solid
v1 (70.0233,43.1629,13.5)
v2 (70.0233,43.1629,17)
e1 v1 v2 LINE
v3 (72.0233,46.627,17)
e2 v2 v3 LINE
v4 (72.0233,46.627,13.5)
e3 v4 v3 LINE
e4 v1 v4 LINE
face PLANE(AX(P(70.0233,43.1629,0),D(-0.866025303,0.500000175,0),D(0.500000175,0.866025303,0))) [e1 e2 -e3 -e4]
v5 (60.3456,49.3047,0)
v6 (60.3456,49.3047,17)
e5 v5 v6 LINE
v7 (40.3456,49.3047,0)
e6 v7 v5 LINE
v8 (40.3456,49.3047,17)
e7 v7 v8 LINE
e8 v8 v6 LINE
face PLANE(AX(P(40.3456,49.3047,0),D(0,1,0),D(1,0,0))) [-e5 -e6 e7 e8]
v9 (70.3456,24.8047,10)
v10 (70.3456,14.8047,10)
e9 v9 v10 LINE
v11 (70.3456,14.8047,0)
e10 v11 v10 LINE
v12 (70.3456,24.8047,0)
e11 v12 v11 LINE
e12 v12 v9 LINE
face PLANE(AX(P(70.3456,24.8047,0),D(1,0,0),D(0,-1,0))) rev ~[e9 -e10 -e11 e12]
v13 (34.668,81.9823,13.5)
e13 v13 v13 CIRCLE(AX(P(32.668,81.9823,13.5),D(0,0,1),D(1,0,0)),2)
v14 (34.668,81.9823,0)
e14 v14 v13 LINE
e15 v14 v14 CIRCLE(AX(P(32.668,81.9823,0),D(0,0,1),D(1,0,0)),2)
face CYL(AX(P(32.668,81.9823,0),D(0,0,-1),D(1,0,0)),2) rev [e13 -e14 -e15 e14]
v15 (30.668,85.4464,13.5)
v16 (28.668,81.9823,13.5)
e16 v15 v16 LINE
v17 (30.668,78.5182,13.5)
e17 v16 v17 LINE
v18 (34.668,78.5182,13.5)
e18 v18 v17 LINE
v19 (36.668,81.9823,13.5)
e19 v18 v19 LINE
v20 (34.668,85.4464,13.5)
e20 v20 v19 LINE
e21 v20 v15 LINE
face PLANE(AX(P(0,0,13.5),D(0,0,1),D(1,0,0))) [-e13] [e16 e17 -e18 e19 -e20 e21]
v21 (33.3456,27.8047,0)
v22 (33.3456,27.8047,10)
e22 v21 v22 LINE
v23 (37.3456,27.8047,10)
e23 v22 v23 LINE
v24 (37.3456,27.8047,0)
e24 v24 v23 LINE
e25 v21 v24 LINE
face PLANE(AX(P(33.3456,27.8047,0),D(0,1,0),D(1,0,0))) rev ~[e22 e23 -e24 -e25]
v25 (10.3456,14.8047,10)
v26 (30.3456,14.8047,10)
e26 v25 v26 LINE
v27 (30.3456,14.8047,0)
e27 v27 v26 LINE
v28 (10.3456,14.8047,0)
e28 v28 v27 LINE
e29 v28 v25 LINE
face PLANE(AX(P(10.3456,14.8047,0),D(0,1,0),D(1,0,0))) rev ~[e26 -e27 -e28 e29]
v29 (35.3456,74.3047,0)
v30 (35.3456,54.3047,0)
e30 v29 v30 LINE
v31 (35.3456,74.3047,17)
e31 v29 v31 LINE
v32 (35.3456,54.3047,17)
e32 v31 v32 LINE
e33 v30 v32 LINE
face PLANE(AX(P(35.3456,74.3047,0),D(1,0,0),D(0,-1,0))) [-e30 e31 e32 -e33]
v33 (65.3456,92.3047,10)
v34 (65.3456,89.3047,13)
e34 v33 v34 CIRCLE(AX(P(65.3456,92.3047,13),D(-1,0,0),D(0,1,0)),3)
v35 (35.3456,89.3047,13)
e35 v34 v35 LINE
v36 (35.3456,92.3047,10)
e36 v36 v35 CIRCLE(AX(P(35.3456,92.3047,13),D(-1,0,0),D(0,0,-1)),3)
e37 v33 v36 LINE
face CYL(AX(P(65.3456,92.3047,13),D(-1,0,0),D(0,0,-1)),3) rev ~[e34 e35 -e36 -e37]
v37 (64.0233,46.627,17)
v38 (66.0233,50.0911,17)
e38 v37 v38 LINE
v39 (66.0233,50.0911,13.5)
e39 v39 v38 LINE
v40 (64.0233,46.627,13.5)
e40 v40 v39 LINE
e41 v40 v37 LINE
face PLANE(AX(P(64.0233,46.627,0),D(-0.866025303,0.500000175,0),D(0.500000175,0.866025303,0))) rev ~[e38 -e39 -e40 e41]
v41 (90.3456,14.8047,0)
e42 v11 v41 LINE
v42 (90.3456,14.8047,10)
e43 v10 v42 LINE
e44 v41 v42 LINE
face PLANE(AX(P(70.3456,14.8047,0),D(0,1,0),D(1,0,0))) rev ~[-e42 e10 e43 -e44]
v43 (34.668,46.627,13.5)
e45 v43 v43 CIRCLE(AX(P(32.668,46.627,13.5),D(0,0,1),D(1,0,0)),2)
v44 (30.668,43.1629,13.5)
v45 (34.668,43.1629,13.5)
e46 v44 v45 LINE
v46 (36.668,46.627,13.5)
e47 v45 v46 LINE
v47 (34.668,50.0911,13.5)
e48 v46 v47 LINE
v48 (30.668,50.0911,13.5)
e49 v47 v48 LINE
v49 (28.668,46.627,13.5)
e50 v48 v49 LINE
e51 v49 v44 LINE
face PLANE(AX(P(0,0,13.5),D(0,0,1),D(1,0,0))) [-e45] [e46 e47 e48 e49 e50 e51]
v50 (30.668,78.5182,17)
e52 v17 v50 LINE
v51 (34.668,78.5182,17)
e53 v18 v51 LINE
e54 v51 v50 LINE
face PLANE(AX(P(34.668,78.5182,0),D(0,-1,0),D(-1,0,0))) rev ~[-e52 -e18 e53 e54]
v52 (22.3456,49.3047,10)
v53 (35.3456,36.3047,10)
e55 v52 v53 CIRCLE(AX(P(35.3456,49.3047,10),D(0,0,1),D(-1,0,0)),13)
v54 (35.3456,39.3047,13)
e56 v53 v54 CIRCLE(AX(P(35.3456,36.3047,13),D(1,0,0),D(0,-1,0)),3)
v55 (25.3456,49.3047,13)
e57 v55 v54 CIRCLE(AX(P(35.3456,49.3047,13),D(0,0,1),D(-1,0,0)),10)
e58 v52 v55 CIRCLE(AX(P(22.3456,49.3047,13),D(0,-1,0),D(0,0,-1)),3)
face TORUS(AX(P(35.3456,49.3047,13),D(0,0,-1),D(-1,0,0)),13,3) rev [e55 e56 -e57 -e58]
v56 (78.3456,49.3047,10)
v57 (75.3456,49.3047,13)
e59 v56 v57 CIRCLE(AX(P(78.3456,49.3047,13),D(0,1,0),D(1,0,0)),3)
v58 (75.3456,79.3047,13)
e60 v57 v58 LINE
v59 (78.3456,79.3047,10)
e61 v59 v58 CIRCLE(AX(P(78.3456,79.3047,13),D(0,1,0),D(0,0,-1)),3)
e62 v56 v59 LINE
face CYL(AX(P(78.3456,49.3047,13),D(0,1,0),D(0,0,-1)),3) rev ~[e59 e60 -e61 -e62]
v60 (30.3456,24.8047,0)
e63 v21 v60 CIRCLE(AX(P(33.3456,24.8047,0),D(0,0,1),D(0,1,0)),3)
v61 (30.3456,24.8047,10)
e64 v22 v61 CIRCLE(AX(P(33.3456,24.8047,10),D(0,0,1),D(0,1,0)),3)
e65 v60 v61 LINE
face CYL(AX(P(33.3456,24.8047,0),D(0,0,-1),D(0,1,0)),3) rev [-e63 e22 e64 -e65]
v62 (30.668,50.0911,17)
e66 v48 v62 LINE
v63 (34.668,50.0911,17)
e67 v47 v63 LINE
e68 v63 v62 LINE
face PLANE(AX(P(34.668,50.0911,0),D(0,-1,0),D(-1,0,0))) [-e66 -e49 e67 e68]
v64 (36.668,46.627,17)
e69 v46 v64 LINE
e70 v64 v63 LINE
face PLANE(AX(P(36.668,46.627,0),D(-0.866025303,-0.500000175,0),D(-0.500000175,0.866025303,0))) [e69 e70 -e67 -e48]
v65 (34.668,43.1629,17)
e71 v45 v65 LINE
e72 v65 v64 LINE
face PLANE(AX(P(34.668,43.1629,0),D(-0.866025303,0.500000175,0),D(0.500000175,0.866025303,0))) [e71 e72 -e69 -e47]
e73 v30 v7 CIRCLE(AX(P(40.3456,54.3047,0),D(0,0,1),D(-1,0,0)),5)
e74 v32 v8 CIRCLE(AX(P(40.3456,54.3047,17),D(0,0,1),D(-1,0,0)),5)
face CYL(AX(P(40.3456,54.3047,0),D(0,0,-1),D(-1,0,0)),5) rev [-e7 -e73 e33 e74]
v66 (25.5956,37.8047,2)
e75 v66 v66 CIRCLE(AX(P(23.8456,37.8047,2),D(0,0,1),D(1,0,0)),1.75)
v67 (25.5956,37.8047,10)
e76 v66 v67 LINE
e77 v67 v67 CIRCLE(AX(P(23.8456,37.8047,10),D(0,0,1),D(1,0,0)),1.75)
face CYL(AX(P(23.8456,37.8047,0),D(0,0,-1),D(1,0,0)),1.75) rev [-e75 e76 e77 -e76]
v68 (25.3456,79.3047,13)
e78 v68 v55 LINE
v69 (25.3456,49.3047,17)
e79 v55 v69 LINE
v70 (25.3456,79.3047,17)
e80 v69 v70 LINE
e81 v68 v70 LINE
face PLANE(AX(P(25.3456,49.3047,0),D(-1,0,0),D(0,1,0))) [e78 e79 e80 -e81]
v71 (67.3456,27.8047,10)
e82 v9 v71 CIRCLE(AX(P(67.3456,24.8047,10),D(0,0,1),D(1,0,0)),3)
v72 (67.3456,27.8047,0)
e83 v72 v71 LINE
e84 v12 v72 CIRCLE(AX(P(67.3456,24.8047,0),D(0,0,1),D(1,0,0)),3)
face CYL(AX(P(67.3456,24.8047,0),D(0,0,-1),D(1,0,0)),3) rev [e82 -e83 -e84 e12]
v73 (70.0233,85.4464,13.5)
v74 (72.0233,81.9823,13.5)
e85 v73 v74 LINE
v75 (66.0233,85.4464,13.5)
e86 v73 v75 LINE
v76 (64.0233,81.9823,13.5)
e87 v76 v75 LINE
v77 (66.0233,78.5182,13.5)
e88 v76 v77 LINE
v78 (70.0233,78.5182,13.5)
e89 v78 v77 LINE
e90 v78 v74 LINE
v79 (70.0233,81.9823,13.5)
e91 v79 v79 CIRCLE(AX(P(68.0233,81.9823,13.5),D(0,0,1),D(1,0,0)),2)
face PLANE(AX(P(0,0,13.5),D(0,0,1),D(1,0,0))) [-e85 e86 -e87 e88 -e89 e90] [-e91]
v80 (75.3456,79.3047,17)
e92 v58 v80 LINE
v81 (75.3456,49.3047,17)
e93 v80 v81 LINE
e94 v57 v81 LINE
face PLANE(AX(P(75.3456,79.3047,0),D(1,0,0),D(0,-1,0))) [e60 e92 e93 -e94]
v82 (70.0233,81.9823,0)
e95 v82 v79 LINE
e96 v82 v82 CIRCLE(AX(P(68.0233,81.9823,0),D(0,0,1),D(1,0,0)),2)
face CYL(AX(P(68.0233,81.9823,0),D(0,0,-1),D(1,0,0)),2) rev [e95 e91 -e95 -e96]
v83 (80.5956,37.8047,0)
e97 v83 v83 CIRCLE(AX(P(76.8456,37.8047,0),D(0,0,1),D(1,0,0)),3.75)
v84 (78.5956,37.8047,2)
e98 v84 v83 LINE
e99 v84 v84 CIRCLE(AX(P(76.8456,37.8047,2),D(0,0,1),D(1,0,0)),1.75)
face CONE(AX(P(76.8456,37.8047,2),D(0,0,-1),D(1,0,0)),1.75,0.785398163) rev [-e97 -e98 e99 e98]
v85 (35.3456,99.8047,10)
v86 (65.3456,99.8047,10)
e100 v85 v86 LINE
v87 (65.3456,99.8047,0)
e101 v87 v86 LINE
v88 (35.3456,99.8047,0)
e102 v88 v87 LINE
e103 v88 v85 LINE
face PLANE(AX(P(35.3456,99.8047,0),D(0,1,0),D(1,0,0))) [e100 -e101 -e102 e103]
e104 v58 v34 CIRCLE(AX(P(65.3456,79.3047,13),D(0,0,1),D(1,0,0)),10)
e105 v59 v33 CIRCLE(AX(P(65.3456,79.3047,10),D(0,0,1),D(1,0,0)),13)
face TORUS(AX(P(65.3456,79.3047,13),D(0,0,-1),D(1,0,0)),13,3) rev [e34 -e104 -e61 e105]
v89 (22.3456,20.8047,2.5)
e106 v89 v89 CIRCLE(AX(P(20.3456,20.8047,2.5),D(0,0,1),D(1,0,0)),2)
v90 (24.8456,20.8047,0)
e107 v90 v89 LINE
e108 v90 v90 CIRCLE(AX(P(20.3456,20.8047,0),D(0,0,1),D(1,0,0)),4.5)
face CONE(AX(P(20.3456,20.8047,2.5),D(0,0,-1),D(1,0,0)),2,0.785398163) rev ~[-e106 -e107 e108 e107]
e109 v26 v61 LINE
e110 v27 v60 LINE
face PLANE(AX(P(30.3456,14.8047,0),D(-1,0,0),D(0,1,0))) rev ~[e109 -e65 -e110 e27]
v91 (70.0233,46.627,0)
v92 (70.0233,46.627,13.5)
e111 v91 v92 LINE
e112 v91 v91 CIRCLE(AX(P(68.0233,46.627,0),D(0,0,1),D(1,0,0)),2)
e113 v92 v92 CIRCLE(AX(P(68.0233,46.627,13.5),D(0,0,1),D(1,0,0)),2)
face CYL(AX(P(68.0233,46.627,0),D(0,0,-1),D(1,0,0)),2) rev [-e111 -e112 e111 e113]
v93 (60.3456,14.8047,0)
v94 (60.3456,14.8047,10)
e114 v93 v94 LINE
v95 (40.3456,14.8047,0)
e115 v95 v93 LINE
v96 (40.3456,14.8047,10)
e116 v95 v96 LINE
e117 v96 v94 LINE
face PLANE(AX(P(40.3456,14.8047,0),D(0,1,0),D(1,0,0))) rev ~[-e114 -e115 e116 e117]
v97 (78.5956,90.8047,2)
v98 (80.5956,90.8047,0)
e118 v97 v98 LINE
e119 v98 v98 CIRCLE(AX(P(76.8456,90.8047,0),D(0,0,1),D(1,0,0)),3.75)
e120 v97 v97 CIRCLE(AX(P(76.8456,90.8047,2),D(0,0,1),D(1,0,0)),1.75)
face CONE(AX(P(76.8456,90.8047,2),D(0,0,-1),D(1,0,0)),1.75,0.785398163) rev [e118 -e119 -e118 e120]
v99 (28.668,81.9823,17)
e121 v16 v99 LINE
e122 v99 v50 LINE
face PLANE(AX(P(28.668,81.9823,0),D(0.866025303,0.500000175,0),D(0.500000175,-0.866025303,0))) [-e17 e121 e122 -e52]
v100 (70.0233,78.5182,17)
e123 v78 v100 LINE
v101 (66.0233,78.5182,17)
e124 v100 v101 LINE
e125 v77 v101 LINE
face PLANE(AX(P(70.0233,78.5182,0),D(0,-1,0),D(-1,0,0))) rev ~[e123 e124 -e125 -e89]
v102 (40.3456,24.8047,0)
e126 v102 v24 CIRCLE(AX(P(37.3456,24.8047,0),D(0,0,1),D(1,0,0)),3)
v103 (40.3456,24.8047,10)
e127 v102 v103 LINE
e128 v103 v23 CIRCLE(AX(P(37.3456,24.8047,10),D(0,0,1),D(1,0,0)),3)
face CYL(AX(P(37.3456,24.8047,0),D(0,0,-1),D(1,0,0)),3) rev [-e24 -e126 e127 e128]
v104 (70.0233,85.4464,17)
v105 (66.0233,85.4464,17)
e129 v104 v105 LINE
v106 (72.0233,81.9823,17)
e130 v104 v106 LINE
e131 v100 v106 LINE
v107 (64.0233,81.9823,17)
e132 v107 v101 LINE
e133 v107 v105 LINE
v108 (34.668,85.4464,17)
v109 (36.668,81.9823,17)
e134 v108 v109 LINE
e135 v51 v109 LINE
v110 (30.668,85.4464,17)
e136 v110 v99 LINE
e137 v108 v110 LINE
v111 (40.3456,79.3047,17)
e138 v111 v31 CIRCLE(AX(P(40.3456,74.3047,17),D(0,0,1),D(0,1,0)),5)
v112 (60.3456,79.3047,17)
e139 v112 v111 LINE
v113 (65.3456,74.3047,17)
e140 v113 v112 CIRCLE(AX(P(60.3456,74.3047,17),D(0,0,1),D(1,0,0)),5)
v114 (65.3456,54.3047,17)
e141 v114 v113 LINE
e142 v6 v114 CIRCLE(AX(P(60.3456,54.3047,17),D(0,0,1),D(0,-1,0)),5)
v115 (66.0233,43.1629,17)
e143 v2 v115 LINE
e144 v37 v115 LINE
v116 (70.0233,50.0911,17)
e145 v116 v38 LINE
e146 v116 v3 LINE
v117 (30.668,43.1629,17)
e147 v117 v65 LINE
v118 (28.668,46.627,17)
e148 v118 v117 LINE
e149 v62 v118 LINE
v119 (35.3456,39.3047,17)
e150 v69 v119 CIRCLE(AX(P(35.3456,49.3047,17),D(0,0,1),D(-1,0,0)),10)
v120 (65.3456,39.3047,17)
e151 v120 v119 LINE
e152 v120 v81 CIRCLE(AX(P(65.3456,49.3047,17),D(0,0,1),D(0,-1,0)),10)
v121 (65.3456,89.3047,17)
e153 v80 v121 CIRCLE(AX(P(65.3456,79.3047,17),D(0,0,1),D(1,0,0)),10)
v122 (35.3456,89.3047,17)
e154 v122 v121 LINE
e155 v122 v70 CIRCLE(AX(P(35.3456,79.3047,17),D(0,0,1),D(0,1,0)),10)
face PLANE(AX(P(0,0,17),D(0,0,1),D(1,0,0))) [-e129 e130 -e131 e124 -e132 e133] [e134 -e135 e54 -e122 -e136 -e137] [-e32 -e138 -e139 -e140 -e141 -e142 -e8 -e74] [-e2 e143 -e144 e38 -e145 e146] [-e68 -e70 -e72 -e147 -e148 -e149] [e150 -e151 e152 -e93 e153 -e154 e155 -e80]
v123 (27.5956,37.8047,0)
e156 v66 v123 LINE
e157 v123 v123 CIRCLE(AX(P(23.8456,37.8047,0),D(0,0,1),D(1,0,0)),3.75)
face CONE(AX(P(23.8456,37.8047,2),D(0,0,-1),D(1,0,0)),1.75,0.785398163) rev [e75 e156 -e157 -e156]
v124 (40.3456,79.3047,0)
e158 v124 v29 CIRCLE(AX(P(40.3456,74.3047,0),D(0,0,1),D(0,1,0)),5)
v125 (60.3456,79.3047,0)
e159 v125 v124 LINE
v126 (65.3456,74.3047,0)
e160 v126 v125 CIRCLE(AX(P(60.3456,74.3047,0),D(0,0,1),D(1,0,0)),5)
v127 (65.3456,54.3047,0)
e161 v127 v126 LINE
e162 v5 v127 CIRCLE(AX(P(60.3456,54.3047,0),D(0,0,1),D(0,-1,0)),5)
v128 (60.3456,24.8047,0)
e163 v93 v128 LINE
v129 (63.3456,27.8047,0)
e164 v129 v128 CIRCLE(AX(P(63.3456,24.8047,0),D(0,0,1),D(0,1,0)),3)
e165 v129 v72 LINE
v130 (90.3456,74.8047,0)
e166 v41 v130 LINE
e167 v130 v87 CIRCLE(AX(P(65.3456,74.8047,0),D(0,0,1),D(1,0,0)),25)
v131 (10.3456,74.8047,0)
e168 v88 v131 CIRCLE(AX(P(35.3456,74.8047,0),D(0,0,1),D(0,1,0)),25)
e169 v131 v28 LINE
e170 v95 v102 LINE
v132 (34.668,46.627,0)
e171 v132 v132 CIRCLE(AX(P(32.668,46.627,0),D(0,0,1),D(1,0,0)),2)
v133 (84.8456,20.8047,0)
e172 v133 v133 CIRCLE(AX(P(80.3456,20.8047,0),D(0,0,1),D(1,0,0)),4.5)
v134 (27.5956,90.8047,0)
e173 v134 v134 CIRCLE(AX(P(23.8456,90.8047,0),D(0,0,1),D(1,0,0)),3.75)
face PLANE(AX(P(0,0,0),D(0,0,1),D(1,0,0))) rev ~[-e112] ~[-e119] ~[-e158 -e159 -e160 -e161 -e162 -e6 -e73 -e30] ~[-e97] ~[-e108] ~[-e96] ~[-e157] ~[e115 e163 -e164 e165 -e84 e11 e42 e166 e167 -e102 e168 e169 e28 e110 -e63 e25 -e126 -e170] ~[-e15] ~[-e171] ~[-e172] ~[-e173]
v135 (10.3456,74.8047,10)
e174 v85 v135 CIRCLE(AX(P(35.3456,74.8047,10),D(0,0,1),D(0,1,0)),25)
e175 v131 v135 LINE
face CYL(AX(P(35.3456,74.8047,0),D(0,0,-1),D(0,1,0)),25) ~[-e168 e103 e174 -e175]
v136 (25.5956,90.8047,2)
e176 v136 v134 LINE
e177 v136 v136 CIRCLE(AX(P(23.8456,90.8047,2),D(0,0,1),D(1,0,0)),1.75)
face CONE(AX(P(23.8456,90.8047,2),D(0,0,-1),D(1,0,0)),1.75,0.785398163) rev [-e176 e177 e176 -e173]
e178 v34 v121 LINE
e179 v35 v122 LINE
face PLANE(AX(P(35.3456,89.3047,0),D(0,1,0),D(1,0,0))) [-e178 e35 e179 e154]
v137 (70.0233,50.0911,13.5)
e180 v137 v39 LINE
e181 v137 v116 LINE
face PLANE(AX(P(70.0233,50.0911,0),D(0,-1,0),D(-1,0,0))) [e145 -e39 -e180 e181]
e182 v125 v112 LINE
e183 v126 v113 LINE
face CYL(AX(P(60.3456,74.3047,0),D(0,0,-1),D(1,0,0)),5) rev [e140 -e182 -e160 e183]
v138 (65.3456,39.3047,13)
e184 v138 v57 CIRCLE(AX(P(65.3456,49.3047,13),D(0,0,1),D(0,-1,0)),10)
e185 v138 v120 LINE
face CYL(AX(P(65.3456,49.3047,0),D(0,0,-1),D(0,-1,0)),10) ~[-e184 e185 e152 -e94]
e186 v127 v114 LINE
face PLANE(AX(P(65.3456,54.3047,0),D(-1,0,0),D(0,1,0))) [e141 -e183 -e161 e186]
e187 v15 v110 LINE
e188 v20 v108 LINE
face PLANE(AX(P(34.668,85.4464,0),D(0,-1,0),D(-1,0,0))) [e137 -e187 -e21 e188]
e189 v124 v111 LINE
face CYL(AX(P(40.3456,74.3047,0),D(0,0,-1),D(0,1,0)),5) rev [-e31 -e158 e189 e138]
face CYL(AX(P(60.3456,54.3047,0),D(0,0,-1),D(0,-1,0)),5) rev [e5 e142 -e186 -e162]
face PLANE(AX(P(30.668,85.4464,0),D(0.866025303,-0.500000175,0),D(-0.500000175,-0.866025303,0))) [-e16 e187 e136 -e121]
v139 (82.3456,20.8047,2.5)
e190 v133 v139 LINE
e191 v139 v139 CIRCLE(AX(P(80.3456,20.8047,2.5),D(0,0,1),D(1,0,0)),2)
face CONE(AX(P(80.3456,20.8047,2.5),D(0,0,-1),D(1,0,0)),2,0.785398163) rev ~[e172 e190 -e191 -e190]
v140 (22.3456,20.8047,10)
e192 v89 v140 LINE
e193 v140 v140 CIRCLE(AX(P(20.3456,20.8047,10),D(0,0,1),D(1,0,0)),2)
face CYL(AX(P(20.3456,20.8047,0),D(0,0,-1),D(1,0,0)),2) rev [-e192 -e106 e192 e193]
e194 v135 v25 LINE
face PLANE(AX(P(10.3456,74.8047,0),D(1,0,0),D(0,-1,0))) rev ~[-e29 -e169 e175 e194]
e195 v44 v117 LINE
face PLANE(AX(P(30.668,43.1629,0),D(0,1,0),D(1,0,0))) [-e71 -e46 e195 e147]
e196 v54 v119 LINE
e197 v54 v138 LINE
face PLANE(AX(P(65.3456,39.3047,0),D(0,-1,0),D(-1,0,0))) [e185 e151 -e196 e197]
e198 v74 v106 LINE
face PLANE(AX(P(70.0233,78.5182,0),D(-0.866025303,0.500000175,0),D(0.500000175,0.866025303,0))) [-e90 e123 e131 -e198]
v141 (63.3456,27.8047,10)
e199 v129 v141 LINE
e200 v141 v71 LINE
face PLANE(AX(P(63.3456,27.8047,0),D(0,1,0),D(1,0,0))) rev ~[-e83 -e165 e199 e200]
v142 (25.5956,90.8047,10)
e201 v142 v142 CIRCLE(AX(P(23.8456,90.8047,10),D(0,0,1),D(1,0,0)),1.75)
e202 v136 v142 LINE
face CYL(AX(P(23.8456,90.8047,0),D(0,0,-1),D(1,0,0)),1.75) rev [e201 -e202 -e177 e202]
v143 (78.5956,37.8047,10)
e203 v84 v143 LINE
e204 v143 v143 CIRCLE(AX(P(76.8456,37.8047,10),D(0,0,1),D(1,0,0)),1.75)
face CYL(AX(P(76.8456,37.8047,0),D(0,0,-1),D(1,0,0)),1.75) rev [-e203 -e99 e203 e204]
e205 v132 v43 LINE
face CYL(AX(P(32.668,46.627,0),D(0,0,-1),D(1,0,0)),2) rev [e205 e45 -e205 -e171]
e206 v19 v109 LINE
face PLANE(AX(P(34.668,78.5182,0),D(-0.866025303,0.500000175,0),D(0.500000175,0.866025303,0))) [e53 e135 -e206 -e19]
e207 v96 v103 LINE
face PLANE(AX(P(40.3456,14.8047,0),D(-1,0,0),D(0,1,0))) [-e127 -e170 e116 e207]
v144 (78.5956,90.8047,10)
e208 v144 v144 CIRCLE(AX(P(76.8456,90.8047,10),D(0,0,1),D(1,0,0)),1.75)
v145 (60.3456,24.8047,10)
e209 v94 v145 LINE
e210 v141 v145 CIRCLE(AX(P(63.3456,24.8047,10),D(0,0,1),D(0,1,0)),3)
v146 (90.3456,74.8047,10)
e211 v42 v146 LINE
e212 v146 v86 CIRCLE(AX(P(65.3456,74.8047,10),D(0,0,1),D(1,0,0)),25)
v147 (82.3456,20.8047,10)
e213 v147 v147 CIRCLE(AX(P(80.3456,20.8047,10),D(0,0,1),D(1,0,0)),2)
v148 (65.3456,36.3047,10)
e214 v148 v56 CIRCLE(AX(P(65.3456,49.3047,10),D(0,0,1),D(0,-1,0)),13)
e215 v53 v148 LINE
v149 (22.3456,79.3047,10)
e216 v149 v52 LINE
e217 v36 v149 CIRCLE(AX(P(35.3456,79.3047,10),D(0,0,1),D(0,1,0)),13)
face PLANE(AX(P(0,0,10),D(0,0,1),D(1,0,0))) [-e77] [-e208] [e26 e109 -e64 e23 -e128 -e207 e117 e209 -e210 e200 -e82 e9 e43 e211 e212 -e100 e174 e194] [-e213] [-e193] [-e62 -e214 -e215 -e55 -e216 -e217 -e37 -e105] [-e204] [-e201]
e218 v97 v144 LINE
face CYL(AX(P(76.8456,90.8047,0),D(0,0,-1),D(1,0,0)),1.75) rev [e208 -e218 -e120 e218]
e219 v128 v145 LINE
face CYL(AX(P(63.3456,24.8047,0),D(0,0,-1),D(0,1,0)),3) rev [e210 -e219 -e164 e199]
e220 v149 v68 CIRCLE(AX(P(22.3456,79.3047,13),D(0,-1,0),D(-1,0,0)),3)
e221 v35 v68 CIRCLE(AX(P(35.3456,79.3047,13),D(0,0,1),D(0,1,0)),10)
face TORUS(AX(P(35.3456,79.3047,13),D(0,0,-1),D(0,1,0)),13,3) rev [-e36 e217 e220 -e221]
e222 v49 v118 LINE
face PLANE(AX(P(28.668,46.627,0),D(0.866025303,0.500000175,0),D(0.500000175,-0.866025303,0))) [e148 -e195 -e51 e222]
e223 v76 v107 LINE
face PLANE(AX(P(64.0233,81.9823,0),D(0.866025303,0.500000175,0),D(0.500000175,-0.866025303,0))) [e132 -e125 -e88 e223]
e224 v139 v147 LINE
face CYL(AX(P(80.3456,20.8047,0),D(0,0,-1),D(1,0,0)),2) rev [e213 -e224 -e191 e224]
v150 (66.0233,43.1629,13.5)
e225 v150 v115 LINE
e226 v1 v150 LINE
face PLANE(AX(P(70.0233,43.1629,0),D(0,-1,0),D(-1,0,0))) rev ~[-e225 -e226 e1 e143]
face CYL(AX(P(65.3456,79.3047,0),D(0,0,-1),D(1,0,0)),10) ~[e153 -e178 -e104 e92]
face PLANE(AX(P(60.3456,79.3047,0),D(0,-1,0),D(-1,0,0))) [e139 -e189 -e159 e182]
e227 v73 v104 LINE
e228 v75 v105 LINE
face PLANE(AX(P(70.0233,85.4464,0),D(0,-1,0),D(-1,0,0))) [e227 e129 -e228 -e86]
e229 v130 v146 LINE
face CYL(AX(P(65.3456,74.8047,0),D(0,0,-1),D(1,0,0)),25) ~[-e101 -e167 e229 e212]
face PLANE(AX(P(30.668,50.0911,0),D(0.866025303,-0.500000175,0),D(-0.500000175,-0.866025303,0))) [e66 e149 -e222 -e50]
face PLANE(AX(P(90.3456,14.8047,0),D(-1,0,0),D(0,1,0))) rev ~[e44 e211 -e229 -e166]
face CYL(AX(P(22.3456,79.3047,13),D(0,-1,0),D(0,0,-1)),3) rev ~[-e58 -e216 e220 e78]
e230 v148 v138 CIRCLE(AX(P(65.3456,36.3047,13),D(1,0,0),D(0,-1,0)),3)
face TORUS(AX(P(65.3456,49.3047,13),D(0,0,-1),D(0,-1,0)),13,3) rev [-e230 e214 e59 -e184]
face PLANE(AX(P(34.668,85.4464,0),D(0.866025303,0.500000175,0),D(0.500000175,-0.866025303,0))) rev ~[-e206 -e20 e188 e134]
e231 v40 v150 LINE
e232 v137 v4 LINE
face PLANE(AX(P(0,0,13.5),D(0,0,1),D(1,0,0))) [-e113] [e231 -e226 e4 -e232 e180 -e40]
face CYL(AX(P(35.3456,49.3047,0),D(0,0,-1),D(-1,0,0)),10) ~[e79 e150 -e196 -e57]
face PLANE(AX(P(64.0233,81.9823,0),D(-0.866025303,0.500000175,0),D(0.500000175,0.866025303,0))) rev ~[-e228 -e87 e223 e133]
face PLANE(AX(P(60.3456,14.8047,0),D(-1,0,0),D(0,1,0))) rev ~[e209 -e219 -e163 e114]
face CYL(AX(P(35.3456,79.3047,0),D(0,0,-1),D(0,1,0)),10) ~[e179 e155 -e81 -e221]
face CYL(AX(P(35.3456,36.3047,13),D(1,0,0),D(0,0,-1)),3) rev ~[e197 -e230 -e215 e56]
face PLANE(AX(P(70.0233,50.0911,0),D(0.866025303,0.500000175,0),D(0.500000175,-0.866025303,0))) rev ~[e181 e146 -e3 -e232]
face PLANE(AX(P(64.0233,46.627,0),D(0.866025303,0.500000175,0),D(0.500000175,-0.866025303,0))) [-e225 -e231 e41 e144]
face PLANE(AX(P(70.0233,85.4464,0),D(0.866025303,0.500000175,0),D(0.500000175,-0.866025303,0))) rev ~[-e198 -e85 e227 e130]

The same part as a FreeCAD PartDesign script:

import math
import FreeCAD as App
import Part
import Sketcher

V = App.Vector
Q = App.Units.Quantity


def edges_at(feature, points):
    """Names of the edges that pass closest to the given points."""
    edges = feature.Shape.Edges
    near = lambda p: min(range(len(edges)), key=lambda i: edges[i].distToShape(Part.Vertex(*p))[0])
    return sorted({f"Edge{near(p) + 1}" for p in points})

doc = App.newDocument("Part")
body = doc.addObject("PartDesign::Body", "Body")

sketch1 = body.newObject("Sketcher::SketchObject", "Sketch")
sketch1.AttachmentSupport = (doc.getObject("XY_Plane"), [""])
sketch1.MapMode = "FlatFace"
sketch1.addGeometry([
    Part.LineSegment(V(10.3, 74.8, 0), V(10.3, 14.8, 0)),
    Part.LineSegment(V(10.3, 14.8, 0), V(30.3, 14.8, 0)),
    Part.LineSegment(V(30.3, 14.8, 0), V(30.3, 24.8, 0)),
    Part.ArcOfCircle(Part.Circle(V(33.3, 24.8, 0), V(0, 0, 1), 3), math.radians(90), math.radians(180)),
    Part.LineSegment(V(33.3, 27.8, 0), V(37.3, 27.8, 0)),
    Part.ArcOfCircle(Part.Circle(V(37.3, 24.8, 0), V(0, 0, 1), 3), math.radians(0), math.radians(90)),
    Part.LineSegment(V(40.3, 24.8, 0), V(40.3, 14.8, 0)),
    Part.LineSegment(V(40.3, 14.8, 0), V(60.3, 14.8, 0)),
    Part.LineSegment(V(60.3, 14.8, 0), V(60.3, 24.8, 0)),
    Part.ArcOfCircle(Part.Circle(V(63.3, 24.8, 0), V(0, 0, 1), 3), math.radians(90), math.radians(180)),
    Part.LineSegment(V(63.3, 27.8, 0), V(67.3, 27.8, 0)),
    Part.ArcOfCircle(Part.Circle(V(67.3, 24.8, 0), V(0, 0, 1), 3), math.radians(0), math.radians(90)),
    Part.LineSegment(V(70.3, 24.8, 0), V(70.3, 14.8, 0)),
    Part.LineSegment(V(70.3, 14.8, 0), V(90.3, 14.8, 0)),
    Part.LineSegment(V(90.3, 14.8, 0), V(90.3, 74.8, 0)),
    Part.ArcOfCircle(Part.Circle(V(65.3, 74.8, 0), V(0, 0, 1), 25), math.radians(0), math.radians(90)),
    Part.LineSegment(V(65.3, 99.8, 0), V(35.3, 99.8, 0)),
    Part.ArcOfCircle(Part.Circle(V(35.3, 74.8, 0), V(0, 0, 1), 25), math.radians(90), math.radians(180)),
    Part.Circle(V(20.3, 20.8, 0), V(0, 0, 1), 2),
    Part.Circle(V(23.8, 37.8, 0), V(0, 0, 1), 1.8),
    Part.Circle(V(80.3, 20.8, 0), V(0, 0, 1), 2),
    Part.Circle(V(76.8, 37.8, 0), V(0, 0, 1), 1.8),
    Part.Circle(V(23.8, 90.8, 0), V(0, 0, 1), 1.8),
    Part.ArcOfCircle(Part.Circle(V(65.3, 79.3, 0), V(0, 0, 1), 10), math.radians(0), math.radians(90)),
    Part.LineSegment(V(75.3, 79.3, 0), V(75.3, 49.3, 0)),
    Part.ArcOfCircle(Part.Circle(V(65.3, 49.3, 0), V(0, 0, 1), 10), math.radians(-90), math.radians(0)),
    Part.LineSegment(V(65.3, 39.3, 0), V(35.3, 39.3, 0)),
    Part.ArcOfCircle(Part.Circle(V(35.3, 49.3, 0), V(0, 0, 1), 10), math.radians(180), math.radians(270)),
    Part.LineSegment(V(25.3, 49.3, 0), V(25.3, 79.3, 0)),
    Part.ArcOfCircle(Part.Circle(V(35.3, 79.3, 0), V(0, 0, 1), 10), math.radians(90), math.radians(180)),
    Part.LineSegment(V(35.3, 89.3, 0), V(65.3, 89.3, 0)),
    Part.Circle(V(76.8, 90.8, 0), V(0, 0, 1), 1.8),
], False)
sketch1.addConstraint([
    Sketcher.Constraint("Coincident", 0, 2, 1, 1),
    Sketcher.Constraint("Coincident", 1, 2, 2, 1),
    Sketcher.Constraint("Tangent", 2, 2, 3, 2),
    Sketcher.Constraint("Tangent", 3, 1, 4, 1),
    Sketcher.Constraint("Tangent", 4, 2, 5, 2),
    Sketcher.Constraint("Tangent", 5, 1, 6, 1),
    Sketcher.Constraint("Coincident", 6, 2, 7, 1),
    Sketcher.Constraint("Coincident", 7, 2, 8, 1),
    Sketcher.Constraint("Tangent", 8, 2, 9, 2),
    Sketcher.Constraint("Tangent", 9, 1, 10, 1),
    Sketcher.Constraint("Tangent", 10, 2, 11, 2),
    Sketcher.Constraint("Tangent", 11, 1, 12, 1),
    Sketcher.Constraint("Coincident", 12, 2, 13, 1),
    Sketcher.Constraint("Coincident", 13, 2, 14, 1),
    Sketcher.Constraint("Tangent", 14, 2, 15, 1),
    Sketcher.Constraint("Tangent", 15, 2, 16, 1),
    Sketcher.Constraint("Tangent", 16, 2, 17, 1),
    Sketcher.Constraint("Tangent", 17, 2, 0, 1),
    Sketcher.Constraint("Tangent", 23, 1, 24, 1),
    Sketcher.Constraint("Tangent", 24, 2, 25, 2),
    Sketcher.Constraint("Tangent", 25, 1, 26, 1),
    Sketcher.Constraint("Tangent", 26, 2, 27, 2),
    Sketcher.Constraint("Tangent", 27, 1, 28, 1),
    Sketcher.Constraint("Tangent", 28, 2, 29, 2),
    Sketcher.Constraint("Tangent", 29, 1, 30, 1),
    Sketcher.Constraint("Tangent", 30, 2, 23, 2),
    Sketcher.Constraint("Vertical", 0),
    Sketcher.Constraint("Horizontal", 1),
    Sketcher.Constraint("Vertical", 2),
    Sketcher.Constraint("Horizontal", 4),
    Sketcher.Constraint("Vertical", 6),
    Sketcher.Constraint("Horizontal", 7),
    Sketcher.Constraint("Vertical", 8),
    Sketcher.Constraint("Horizontal", 10),
    Sketcher.Constraint("Vertical", 12),
    Sketcher.Constraint("Horizontal", 13),
    Sketcher.Constraint("Vertical", 14),
    Sketcher.Constraint("Horizontal", 16),
    Sketcher.Constraint("Vertical", 24),
    Sketcher.Constraint("Horizontal", 26),
    Sketcher.Constraint("Vertical", 28),
    Sketcher.Constraint("Horizontal", 30),
    Sketcher.Constraint("Equal", 3, 5),
    Sketcher.Constraint("Equal", 5, 9),
    Sketcher.Constraint("Equal", 9, 11),
    Sketcher.Constraint("Equal", 15, 17),
    Sketcher.Constraint("Equal", 18, 20),
    Sketcher.Constraint("Equal", 19, 21),
    Sketcher.Constraint("Equal", 21, 22),
    Sketcher.Constraint("Equal", 23, 25),
    Sketcher.Constraint("Equal", 25, 27),
    Sketcher.Constraint("Equal", 27, 29),
    Sketcher.Constraint("Equal", 22, 31),
    Sketcher.Constraint("Horizontal", 5, 3, 9, 3),
    Sketcher.Constraint("Horizontal", 18, 3, 20, 3),
    Sketcher.Constraint("Horizontal", 19, 3, 21, 3),
    Sketcher.Constraint("Horizontal", 22, 3, 31, 3),
    Sketcher.Constraint("Horizontal", 1, 2, 6, 2),
    Sketcher.Constraint("Horizontal", 7, 2, 12, 2),
    Sketcher.Constraint("Vertical", 19, 3, 22, 3),
    Sketcher.Constraint("Vertical", 15, 3, 23, 3),
    Sketcher.Constraint("Vertical", 17, 3, 27, 3),
    Sketcher.Constraint("Vertical", 21, 3, 31, 3),
    Sketcher.Constraint("Equal", 1, 7),
    Sketcher.Constraint("Equal", 4, 10),
    Sketcher.Constraint("Equal", 7, 13),
    Sketcher.Constraint("Equal", 30, 24),
    Sketcher.Constraint("Diameter", 18, 4.0),
    Sketcher.Constraint("DistanceX", 4, 1, 4, 2, 4.0),
    Sketcher.Constraint("Radius", 3, 3.0),
    Sketcher.Constraint("Radius", 15, 25.0),
    Sketcher.Constraint("Radius", 23, 10.0),
    Sketcher.Constraint("DistanceY", 18, 3, 3, 3, 4.0),
    Sketcher.Constraint("Diameter", 19, 3.5),
    Sketcher.Constraint("DistanceX", 1, 1, 1, 2, 20.0),
    Sketcher.Constraint("DistanceY", 0, 2, 0, 1, 60.0),
    Sketcher.Constraint("DistanceY", 2, 1, 2, 2, 10.0),
    Sketcher.Constraint("DistanceX", 18, 3, 3, 3, 13.0),
    Sketcher.Constraint("DistanceY", 3, 3, 19, 3, 13.0),
    Sketcher.Constraint("DistanceX", 11, 3, 20, 3, 13.0),
    Sketcher.Constraint("DistanceY", 17, 3, 22, 3, 16.0),
    Sketcher.Constraint("DistanceX", 19, 3, 3, 3, 9.5),
    Sketcher.Constraint("DistanceX", 11, 3, 21, 3, 9.5),
    Sketcher.Constraint("DistanceY", 15, 3, 23, 3, 4.5),
    Sketcher.Constraint("DistanceX", -1, 1, 3, 3, 33.3456),
    Sketcher.Constraint("DistanceY", -1, 1, 3, 3, 24.8047),
])
pad1 = body.newObject("PartDesign::Pad", "Pad")
pad1.Profile = sketch1
pad1.Length = 10

sketch2 = body.newObject("Sketcher::SketchObject", "Sketch001")
sketch2.AttachmentSupport = (doc.getObject("XY_Plane"), [""])
sketch2.MapMode = "FlatFace"
sketch2.addGeometry([
    Part.LineSegment(V(75.3, 49.3, 0), V(75.3, 79.3, 0)),
    Part.ArcOfCircle(Part.Circle(V(65.3, 79.3, 0), V(0, 0, 1), 10), math.radians(0), math.radians(90)),
    Part.LineSegment(V(65.3, 89.3, 0), V(35.3, 89.3, 0)),
    Part.ArcOfCircle(Part.Circle(V(35.3, 79.3, 0), V(0, 0, 1), 10), math.radians(90), math.radians(180)),
    Part.LineSegment(V(25.3, 79.3, 0), V(25.3, 49.3, 0)),
    Part.ArcOfCircle(Part.Circle(V(35.3, 49.3, 0), V(0, 0, 1), 10), math.radians(180), math.radians(270)),
    Part.LineSegment(V(35.3, 39.3, 0), V(65.3, 39.3, 0)),
    Part.ArcOfCircle(Part.Circle(V(65.3, 49.3, 0), V(0, 0, 1), 10), math.radians(-90), math.radians(0)),
    Part.LineSegment(V(36.7, 46.6, 0), V(34.7, 43.2, 0)),
    Part.LineSegment(V(34.7, 43.2, 0), V(30.7, 43.2, 0)),
    Part.LineSegment(V(30.7, 43.2, 0), V(28.7, 46.6, 0)),
    Part.LineSegment(V(28.7, 46.6, 0), V(30.7, 50.1, 0)),
    Part.LineSegment(V(30.7, 50.1, 0), V(34.7, 50.1, 0)),
    Part.LineSegment(V(34.7, 50.1, 0), V(36.7, 46.6, 0)),
    Part.LineSegment(V(72, 46.6, 0), V(70, 43.2, 0)),
    Part.LineSegment(V(70, 43.2, 0), V(66, 43.2, 0)),
    Part.LineSegment(V(66, 43.2, 0), V(64, 46.6, 0)),
    Part.LineSegment(V(64, 46.6, 0), V(66, 50.1, 0)),
    Part.LineSegment(V(66, 50.1, 0), V(70, 50.1, 0)),
    Part.LineSegment(V(70, 50.1, 0), V(72, 46.6, 0)),
    Part.LineSegment(V(36.7, 82, 0), V(34.7, 78.5, 0)),
    Part.LineSegment(V(34.7, 78.5, 0), V(30.7, 78.5, 0)),
    Part.LineSegment(V(30.7, 78.5, 0), V(28.7, 82, 0)),
    Part.LineSegment(V(28.7, 82, 0), V(30.7, 85.4, 0)),
    Part.LineSegment(V(30.7, 85.4, 0), V(34.7, 85.4, 0)),
    Part.LineSegment(V(34.7, 85.4, 0), V(36.7, 82, 0)),
    Part.ArcOfCircle(Part.Circle(V(40.3, 74.3, 0), V(0, 0, 1), 5), math.radians(90), math.radians(180)),
    Part.LineSegment(V(40.3, 79.3, 0), V(60.3, 79.3, 0)),
    Part.ArcOfCircle(Part.Circle(V(60.3, 74.3, 0), V(0, 0, 1), 5), math.radians(0), math.radians(90)),
    Part.LineSegment(V(65.3, 74.3, 0), V(65.3, 54.3, 0)),
    Part.ArcOfCircle(Part.Circle(V(60.3, 54.3, 0), V(0, 0, 1), 5), math.radians(-90), math.radians(0)),
    Part.LineSegment(V(60.3, 49.3, 0), V(40.3, 49.3, 0)),
    Part.ArcOfCircle(Part.Circle(V(40.3, 54.3, 0), V(0, 0, 1), 5), math.radians(180), math.radians(270)),
    Part.LineSegment(V(35.3, 54.3, 0), V(35.3, 74.3, 0)),
    Part.LineSegment(V(72, 82, 0), V(70, 78.5, 0)),
    Part.LineSegment(V(70, 78.5, 0), V(66, 78.5, 0)),
    Part.LineSegment(V(66, 78.5, 0), V(64, 82, 0)),
    Part.LineSegment(V(64, 82, 0), V(66, 85.4, 0)),
    Part.LineSegment(V(66, 85.4, 0), V(70, 85.4, 0)),
    Part.LineSegment(V(70, 85.4, 0), V(72, 82, 0)),
], False)
sketch2.addConstraint([
    Sketcher.Constraint("Tangent", 0, 2, 1, 1),
    Sketcher.Constraint("Tangent", 1, 2, 2, 1),
    Sketcher.Constraint("Tangent", 2, 2, 3, 1),
    Sketcher.Constraint("Tangent", 3, 2, 4, 1),
    Sketcher.Constraint("Tangent", 4, 2, 5, 1),
    Sketcher.Constraint("Tangent", 5, 2, 6, 1),
    Sketcher.Constraint("Tangent", 6, 2, 7, 1),
    Sketcher.Constraint("Tangent", 7, 2, 0, 1),
    Sketcher.Constraint("Coincident", 8, 2, 9, 1),
    Sketcher.Constraint("Coincident", 9, 2, 10, 1),
    Sketcher.Constraint("Coincident", 10, 2, 11, 1),
    Sketcher.Constraint("Coincident", 11, 2, 12, 1),
    Sketcher.Constraint("Coincident", 12, 2, 13, 1),
    Sketcher.Constraint("Coincident", 13, 2, 8, 1),
    Sketcher.Constraint("Coincident", 14, 2, 15, 1),
    Sketcher.Constraint("Coincident", 15, 2, 16, 1),
    Sketcher.Constraint("Coincident", 16, 2, 17, 1),
    Sketcher.Constraint("Coincident", 17, 2, 18, 1),
    Sketcher.Constraint("Coincident", 18, 2, 19, 1),
    Sketcher.Constraint("Coincident", 19, 2, 14, 1),
    Sketcher.Constraint("Coincident", 20, 2, 21, 1),
    Sketcher.Constraint("Coincident", 21, 2, 22, 1),
    Sketcher.Constraint("Coincident", 22, 2, 23, 1),
    Sketcher.Constraint("Coincident", 23, 2, 24, 1),
    Sketcher.Constraint("Coincident", 24, 2, 25, 1),
    Sketcher.Constraint("Coincident", 25, 2, 20, 1),
    Sketcher.Constraint("Tangent", 26, 1, 27, 1),
    Sketcher.Constraint("Tangent", 27, 2, 28, 2),
    Sketcher.Constraint("Tangent", 28, 1, 29, 1),
    Sketcher.Constraint("Tangent", 29, 2, 30, 2),
    Sketcher.Constraint("Tangent", 30, 1, 31, 1),
    Sketcher.Constraint("Tangent", 31, 2, 32, 2),
    Sketcher.Constraint("Tangent", 32, 1, 33, 1),
    Sketcher.Constraint("Tangent", 33, 2, 26, 2),
    Sketcher.Constraint("Coincident", 34, 2, 35, 1),
    Sketcher.Constraint("Coincident", 35, 2, 36, 1),
    Sketcher.Constraint("Coincident", 36, 2, 37, 1),
    Sketcher.Constraint("Coincident", 37, 2, 38, 1),
    Sketcher.Constraint("Coincident", 38, 2, 39, 1),
    Sketcher.Constraint("Coincident", 39, 2, 34, 1),
    Sketcher.Constraint("Vertical", 0),
    Sketcher.Constraint("Horizontal", 2),
    Sketcher.Constraint("Vertical", 4),
    Sketcher.Constraint("Horizontal", 6),
    Sketcher.Constraint("Horizontal", 9),
    Sketcher.Constraint("Horizontal", 12),
    Sketcher.Constraint("Horizontal", 15),
    Sketcher.Constraint("Horizontal", 18),
    Sketcher.Constraint("Horizontal", 21),
    Sketcher.Constraint("Horizontal", 24),
    Sketcher.Constraint("Horizontal", 27),
    Sketcher.Constraint("Vertical", 29),
    Sketcher.Constraint("Horizontal", 31),
    Sketcher.Constraint("Vertical", 33),
    Sketcher.Constraint("Horizontal", 35),
    Sketcher.Constraint("Horizontal", 38),
    Sketcher.Constraint("Equal", 1, 3),
    Sketcher.Constraint("Equal", 3, 5),
    Sketcher.Constraint("Equal", 5, 7),
    Sketcher.Constraint("Equal", 26, 28),
    Sketcher.Constraint("Equal", 28, 30),
    Sketcher.Constraint("Equal", 30, 32),
    Sketcher.Constraint("Parallel", 8, 11),
    Sketcher.Constraint("Parallel", 10, 13),
    Sketcher.Constraint("Parallel", 11, 14),
    Sketcher.Constraint("Parallel", 13, 16),
    Sketcher.Constraint("Parallel", 14, 17),
    Sketcher.Constraint("Parallel", 16, 19),
    Sketcher.Constraint("Parallel", 17, 20),
    Sketcher.Constraint("Parallel", 19, 22),
    Sketcher.Constraint("Parallel", 20, 23),
    Sketcher.Constraint("Parallel", 22, 25),
    Sketcher.Constraint("Parallel", 23, 34),
    Sketcher.Constraint("Parallel", 25, 36),
    Sketcher.Constraint("Parallel", 34, 37),
    Sketcher.Constraint("Parallel", 36, 39),
    Sketcher.Constraint("Horizontal", 10, 2, 13, 2),
    Sketcher.Constraint("Horizontal", 9, 2, 14, 2),
    Sketcher.Constraint("Horizontal", 13, 2, 16, 2),
    Sketcher.Constraint("Horizontal", 12, 2, 17, 2),
    Sketcher.Constraint("Horizontal", 16, 2, 19, 2),
    Sketcher.Constraint("Horizontal", 22, 2, 25, 2),
    Sketcher.Constraint("Horizontal", 3, 2, 26, 1),
    Sketcher.Constraint("Horizontal", 7, 2, 30, 1),
    Sketcher.Constraint("Horizontal", 21, 2, 34, 2),
    Sketcher.Constraint("Horizontal", 25, 2, 36, 2),
    Sketcher.Constraint("Horizontal", 24, 2, 37, 2),
    Sketcher.Constraint("Horizontal", 36, 2, 39, 2),
    Sketcher.Constraint("Vertical", 9, 2, 11, 2),
    Sketcher.Constraint("Vertical", 8, 2, 12, 2),
    Sketcher.Constraint("Vertical", 12, 2, 20, 2),
    Sketcher.Constraint("Vertical", 11, 2, 21, 2),
    Sketcher.Constraint("Vertical", 10, 2, 22, 2),
    Sketcher.Constraint("Vertical", 21, 2, 23, 2),
    Sketcher.Constraint("Vertical", 6, 2, 28, 1),
    Sketcher.Constraint("Vertical", 5, 2, 32, 1),
    Sketcher.Constraint("Vertical", 18, 2, 34, 2),
    Sketcher.Constraint("Vertical", 17, 2, 35, 2),
    Sketcher.Constraint("Equal", 12, 15),
    Sketcher.Constraint("Equal", 6, 0),
    Sketcher.Constraint("DistanceX", 9, 2, 9, 1, 4.0),
    Sketcher.Constraint("Distance", 8, 4.0),
    Sketcher.Constraint("Radius", 1, 10.0),
    Sketcher.Constraint("Radius", 26, 5.0),
    Sketcher.Constraint("DistanceX", 2, 2, 2, 1, 30.0),
    Sketcher.Constraint("Angle", 8, Q("-120 deg")),
    Sketcher.Constraint("DistanceX", -1, 1, 8, 2, 34.668),
    Sketcher.Constraint("DistanceY", -1, 1, 8, 2, 43.163),
    Sketcher.Constraint("DistanceX", -1, 1, 1, 3, 65.3456),
    Sketcher.Constraint("DistanceY", -1, 1, 1, 3, 79.3047),
    Sketcher.Constraint("DistanceX", -1, 1, 14, 2, 70.0233),
    Sketcher.Constraint("DistanceY", -1, 1, 20, 2, 78.5182),
])
pad2 = body.newObject("PartDesign::Pad", "Pad001")
pad2.Profile = sketch2
pad2.Length = 17

sketch3 = body.newObject("Sketcher::SketchObject", "Sketch002")
sketch3.AttachmentSupport = (doc.getObject("XY_Plane"), [""])
sketch3.MapMode = "FlatFace"
sketch3.addGeometry([
    Part.LineSegment(V(30.7, 78.5, 0), V(34.7, 78.5, 0)),
    Part.LineSegment(V(34.7, 78.5, 0), V(36.7, 82, 0)),
    Part.LineSegment(V(36.7, 82, 0), V(34.7, 85.4, 0)),
    Part.LineSegment(V(34.7, 85.4, 0), V(30.7, 85.4, 0)),
    Part.LineSegment(V(30.7, 85.4, 0), V(28.7, 82, 0)),
    Part.LineSegment(V(28.7, 82, 0), V(30.7, 78.5, 0)),
    Part.Circle(V(32.7, 82, 0), V(0, 0, 1), 2),
    Part.LineSegment(V(66, 78.5, 0), V(70, 78.5, 0)),
    Part.LineSegment(V(70, 78.5, 0), V(72, 82, 0)),
    Part.LineSegment(V(72, 82, 0), V(70, 85.4, 0)),
    Part.LineSegment(V(70, 85.4, 0), V(66, 85.4, 0)),
    Part.LineSegment(V(66, 85.4, 0), V(64, 82, 0)),
    Part.LineSegment(V(64, 82, 0), V(66, 78.5, 0)),
    Part.Circle(V(68, 82, 0), V(0, 0, 1), 2),
    Part.LineSegment(V(66, 43.2, 0), V(70, 43.2, 0)),
    Part.LineSegment(V(70, 43.2, 0), V(72, 46.6, 0)),
    Part.LineSegment(V(72, 46.6, 0), V(70, 50.1, 0)),
    Part.LineSegment(V(70, 50.1, 0), V(66, 50.1, 0)),
    Part.LineSegment(V(66, 50.1, 0), V(64, 46.6, 0)),
    Part.LineSegment(V(64, 46.6, 0), V(66, 43.2, 0)),
    Part.Circle(V(68, 46.6, 0), V(0, 0, 1), 2),
    Part.LineSegment(V(30.7, 43.2, 0), V(34.7, 43.2, 0)),
    Part.LineSegment(V(34.7, 43.2, 0), V(36.7, 46.6, 0)),
    Part.LineSegment(V(36.7, 46.6, 0), V(34.7, 50.1, 0)),
    Part.LineSegment(V(34.7, 50.1, 0), V(30.7, 50.1, 0)),
    Part.LineSegment(V(30.7, 50.1, 0), V(28.7, 46.6, 0)),
    Part.LineSegment(V(28.7, 46.6, 0), V(30.7, 43.2, 0)),
    Part.Circle(V(32.7, 46.6, 0), V(0, 0, 1), 2),
], False)
sketch3.addConstraint([
    Sketcher.Constraint("Coincident", 0, 2, 1, 1),
    Sketcher.Constraint("Coincident", 1, 2, 2, 1),
    Sketcher.Constraint("Coincident", 2, 2, 3, 1),
    Sketcher.Constraint("Coincident", 3, 2, 4, 1),
    Sketcher.Constraint("Coincident", 4, 2, 5, 1),
    Sketcher.Constraint("Coincident", 5, 2, 0, 1),
    Sketcher.Constraint("Coincident", 7, 2, 8, 1),
    Sketcher.Constraint("Coincident", 8, 2, 9, 1),
    Sketcher.Constraint("Coincident", 9, 2, 10, 1),
    Sketcher.Constraint("Coincident", 10, 2, 11, 1),
    Sketcher.Constraint("Coincident", 11, 2, 12, 1),
    Sketcher.Constraint("Coincident", 12, 2, 7, 1),
    Sketcher.Constraint("Coincident", 14, 2, 15, 1),
    Sketcher.Constraint("Coincident", 15, 2, 16, 1),
    Sketcher.Constraint("Coincident", 16, 2, 17, 1),
    Sketcher.Constraint("Coincident", 17, 2, 18, 1),
    Sketcher.Constraint("Coincident", 18, 2, 19, 1),
    Sketcher.Constraint("Coincident", 19, 2, 14, 1),
    Sketcher.Constraint("Coincident", 21, 2, 22, 1),
    Sketcher.Constraint("Coincident", 22, 2, 23, 1),
    Sketcher.Constraint("Coincident", 23, 2, 24, 1),
    Sketcher.Constraint("Coincident", 24, 2, 25, 1),
    Sketcher.Constraint("Coincident", 25, 2, 26, 1),
    Sketcher.Constraint("Coincident", 26, 2, 21, 1),
    Sketcher.Constraint("Horizontal", 0),
    Sketcher.Constraint("Horizontal", 3),
    Sketcher.Constraint("Horizontal", 7),
    Sketcher.Constraint("Horizontal", 10),
    Sketcher.Constraint("Horizontal", 14),
    Sketcher.Constraint("Horizontal", 17),
    Sketcher.Constraint("Horizontal", 21),
    Sketcher.Constraint("Horizontal", 24),
    Sketcher.Constraint("Equal", 6, 13),
    Sketcher.Constraint("Equal", 13, 20),
    Sketcher.Constraint("Equal", 20, 27),
    Sketcher.Constraint("Parallel", 1, 4),
    Sketcher.Constraint("Parallel", 2, 5),
    Sketcher.Constraint("Parallel", 4, 8),
    Sketcher.Constraint("Parallel", 5, 9),
    Sketcher.Constraint("Parallel", 8, 11),
    Sketcher.Constraint("Parallel", 9, 12),
    Sketcher.Constraint("Parallel", 11, 15),
    Sketcher.Constraint("Parallel", 12, 16),
    Sketcher.Constraint("Parallel", 15, 18),
    Sketcher.Constraint("Parallel", 16, 19),
    Sketcher.Constraint("Parallel", 18, 22),
    Sketcher.Constraint("Parallel", 19, 23),
    Sketcher.Constraint("Parallel", 22, 25),
    Sketcher.Constraint("Parallel", 23, 26),
    Sketcher.Constraint("Horizontal", 6, 3, 13, 3),
    Sketcher.Constraint("Horizontal", 20, 3, 27, 3),
    Sketcher.Constraint("Horizontal", 13, 3, 1, 2),
    Sketcher.Constraint("Horizontal", 1, 2, 4, 2),
    Sketcher.Constraint("Horizontal", 5, 2, 7, 2),
    Sketcher.Constraint("Horizontal", 4, 2, 8, 2),
    Sketcher.Constraint("Horizontal", 3, 2, 9, 2),
    Sketcher.Constraint("Horizontal", 8, 2, 11, 2),
    Sketcher.Constraint("Horizontal", 27, 3, 15, 2),
    Sketcher.Constraint("Horizontal", 15, 2, 18, 2),
    Sketcher.Constraint("Horizontal", 19, 2, 21, 2),
    Sketcher.Constraint("Horizontal", 18, 2, 22, 2),
    Sketcher.Constraint("Horizontal", 17, 2, 23, 2),
    Sketcher.Constraint("Horizontal", 22, 2, 25, 2),
    Sketcher.Constraint("Vertical", 13, 3, 20, 3),
    Sketcher.Constraint("Vertical", 6, 3, 27, 3),
    Sketcher.Constraint("Vertical", 0, 2, 2, 2),
    Sketcher.Constraint("Vertical", 3, 2, 5, 2),
    Sketcher.Constraint("Vertical", 9, 2, 14, 2),
    Sketcher.Constraint("Vertical", 8, 2, 15, 2),
    Sketcher.Constraint("Vertical", 14, 2, 16, 2),
    Sketcher.Constraint("Vertical", 12, 2, 17, 2),
    Sketcher.Constraint("Vertical", 2, 2, 21, 2),
    Sketcher.Constraint("Vertical", 5, 2, 24, 2),
    Sketcher.Constraint("Equal", 3, 7),
    Sketcher.Constraint("Diameter", 6, 4.0),
    Sketcher.Constraint("DistanceX", 0, 1, 0, 2, 4.0),
    Sketcher.Constraint("Distance", 1, 4.0),
    Sketcher.Constraint("DistanceX", 6, 3, 1, 2, 4.0),
    Sketcher.Constraint("DistanceX", 4, 2, 6, 3, 4.0),
    Sketcher.Constraint("DistanceX", 13, 3, 8, 2, 4.0),
    Sketcher.Constraint("DistanceX", -1, 1, 6, 3, 32.668),
    Sketcher.Constraint("DistanceY", -1, 1, 20, 3, 46.627),
    Sketcher.Constraint("DistanceY", 16, 2, 7, 2, 28.427),
    Sketcher.Constraint("DistanceX", -1, 1, 13, 3, 68.0233),
])
pad3 = body.newObject("PartDesign::Pad", "Pad002")
pad3.Profile = sketch3
pad3.Length = 13.5
doc.recompute()

fillet = body.newObject("PartDesign::Fillet", "Fillet")
fillet.Base = (pad3, edges_at(pad3, [
    (72.417, 42.234, 10),
    (50.346, 39.305, 10),
    (28.275, 42.234, 10),
    (25.346, 64.305, 10),
    (28.275, 86.376, 10),
    (50.346, 89.305, 10),
    (72.417, 86.376, 10),
    (75.346, 64.305, 10),
]))
fillet.Radius = 3
doc.recompute()

chamfer = body.newObject("PartDesign::Chamfer", "Chamfer")
chamfer.Base = (fillet, edges_at(fillet, [
    (75.096, 90.805, 0),
    (22.096, 90.805, 0),
    (75.096, 37.805, 0),
    (22.096, 37.805, 0),
]))
chamfer.Size = 2
doc.recompute()

chamfer2 = body.newObject("PartDesign::Chamfer", "Chamfer001")
chamfer2.Base = (chamfer, edges_at(chamfer, [(78.346, 20.805, 0), (18.346, 20.805, 0)]))
chamfer2.Size = 2.5

doc.recompute()
